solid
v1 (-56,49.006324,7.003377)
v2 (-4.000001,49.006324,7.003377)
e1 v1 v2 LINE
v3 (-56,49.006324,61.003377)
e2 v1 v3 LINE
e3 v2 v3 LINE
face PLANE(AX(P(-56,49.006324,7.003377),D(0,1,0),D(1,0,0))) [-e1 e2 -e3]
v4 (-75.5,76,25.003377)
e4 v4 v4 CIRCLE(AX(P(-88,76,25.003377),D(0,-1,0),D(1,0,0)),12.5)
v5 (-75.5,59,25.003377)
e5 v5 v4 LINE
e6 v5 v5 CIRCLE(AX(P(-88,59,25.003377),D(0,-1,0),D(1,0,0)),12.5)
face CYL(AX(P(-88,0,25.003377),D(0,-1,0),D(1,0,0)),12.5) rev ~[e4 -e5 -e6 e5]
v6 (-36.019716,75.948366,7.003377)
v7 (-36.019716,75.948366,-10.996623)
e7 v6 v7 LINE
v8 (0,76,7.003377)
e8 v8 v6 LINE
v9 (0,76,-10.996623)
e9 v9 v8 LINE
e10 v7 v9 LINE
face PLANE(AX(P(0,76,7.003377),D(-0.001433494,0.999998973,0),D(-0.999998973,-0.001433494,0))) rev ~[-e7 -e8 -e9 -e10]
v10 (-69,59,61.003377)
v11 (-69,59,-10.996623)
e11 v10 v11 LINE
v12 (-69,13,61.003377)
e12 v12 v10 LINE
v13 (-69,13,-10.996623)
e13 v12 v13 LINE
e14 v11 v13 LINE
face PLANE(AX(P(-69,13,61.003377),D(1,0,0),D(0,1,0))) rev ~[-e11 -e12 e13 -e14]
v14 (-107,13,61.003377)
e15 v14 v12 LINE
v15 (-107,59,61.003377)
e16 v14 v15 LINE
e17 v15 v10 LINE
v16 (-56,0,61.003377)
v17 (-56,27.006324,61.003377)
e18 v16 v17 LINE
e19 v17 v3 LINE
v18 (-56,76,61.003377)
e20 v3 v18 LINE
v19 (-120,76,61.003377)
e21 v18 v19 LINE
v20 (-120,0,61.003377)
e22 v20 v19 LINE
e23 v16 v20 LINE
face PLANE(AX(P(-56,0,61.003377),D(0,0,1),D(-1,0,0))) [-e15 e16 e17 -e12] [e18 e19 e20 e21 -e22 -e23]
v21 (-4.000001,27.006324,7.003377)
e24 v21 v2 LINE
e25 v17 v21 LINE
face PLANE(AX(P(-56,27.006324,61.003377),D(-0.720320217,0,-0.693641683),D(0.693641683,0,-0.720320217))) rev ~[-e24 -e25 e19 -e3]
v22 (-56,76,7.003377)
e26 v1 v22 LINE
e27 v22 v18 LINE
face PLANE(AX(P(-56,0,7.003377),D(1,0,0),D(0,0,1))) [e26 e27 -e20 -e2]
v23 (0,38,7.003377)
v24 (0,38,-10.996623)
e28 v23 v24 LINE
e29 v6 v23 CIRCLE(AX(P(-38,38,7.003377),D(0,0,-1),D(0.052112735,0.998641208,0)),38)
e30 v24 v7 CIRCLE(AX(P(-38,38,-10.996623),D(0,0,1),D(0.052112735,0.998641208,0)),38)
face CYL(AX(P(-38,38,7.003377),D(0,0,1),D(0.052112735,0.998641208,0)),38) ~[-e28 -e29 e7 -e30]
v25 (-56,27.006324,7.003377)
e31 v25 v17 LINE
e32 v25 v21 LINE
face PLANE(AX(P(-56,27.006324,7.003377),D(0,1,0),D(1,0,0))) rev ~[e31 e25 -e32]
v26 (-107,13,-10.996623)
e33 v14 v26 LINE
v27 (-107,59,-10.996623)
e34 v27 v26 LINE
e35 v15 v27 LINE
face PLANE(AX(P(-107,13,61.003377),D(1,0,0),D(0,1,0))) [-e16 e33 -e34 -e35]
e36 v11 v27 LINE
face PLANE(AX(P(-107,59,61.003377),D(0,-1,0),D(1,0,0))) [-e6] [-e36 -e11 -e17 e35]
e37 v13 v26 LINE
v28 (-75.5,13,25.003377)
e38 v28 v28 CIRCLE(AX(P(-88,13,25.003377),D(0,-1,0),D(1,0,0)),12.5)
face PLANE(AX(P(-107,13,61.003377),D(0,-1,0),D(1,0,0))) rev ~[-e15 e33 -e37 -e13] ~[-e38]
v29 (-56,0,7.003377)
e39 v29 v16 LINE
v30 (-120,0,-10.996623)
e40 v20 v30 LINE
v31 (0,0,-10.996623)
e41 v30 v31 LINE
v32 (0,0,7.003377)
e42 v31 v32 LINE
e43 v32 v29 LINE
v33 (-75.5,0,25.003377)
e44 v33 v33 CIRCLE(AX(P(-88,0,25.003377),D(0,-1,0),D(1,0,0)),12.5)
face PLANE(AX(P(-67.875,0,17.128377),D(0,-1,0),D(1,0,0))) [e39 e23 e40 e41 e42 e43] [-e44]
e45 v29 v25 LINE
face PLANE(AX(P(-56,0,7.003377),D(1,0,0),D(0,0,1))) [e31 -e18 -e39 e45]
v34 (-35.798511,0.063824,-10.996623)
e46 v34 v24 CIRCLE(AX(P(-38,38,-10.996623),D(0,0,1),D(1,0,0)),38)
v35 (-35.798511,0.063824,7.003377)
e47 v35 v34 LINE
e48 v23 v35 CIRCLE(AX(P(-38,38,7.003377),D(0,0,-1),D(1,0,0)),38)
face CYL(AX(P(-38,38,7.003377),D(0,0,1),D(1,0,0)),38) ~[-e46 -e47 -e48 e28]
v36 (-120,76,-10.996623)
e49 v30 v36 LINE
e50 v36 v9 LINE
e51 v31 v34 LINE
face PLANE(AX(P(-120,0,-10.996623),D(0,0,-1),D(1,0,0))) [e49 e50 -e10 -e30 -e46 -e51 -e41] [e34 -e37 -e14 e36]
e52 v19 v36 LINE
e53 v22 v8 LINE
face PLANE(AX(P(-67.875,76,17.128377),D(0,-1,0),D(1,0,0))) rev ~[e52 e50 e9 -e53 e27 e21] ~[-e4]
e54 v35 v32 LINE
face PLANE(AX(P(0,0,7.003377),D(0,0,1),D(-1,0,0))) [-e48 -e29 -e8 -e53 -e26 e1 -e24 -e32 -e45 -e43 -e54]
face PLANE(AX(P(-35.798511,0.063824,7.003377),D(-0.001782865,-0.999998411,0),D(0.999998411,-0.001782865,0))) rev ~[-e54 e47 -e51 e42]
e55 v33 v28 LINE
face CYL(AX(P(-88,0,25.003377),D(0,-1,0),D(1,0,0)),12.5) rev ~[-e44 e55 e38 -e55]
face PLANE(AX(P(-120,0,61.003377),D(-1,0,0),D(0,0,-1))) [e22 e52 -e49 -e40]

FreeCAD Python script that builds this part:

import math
import FreeCAD as App
import Part
import Sketcher
Q = App.Units.Quantity

doc = App.newDocument("Part")
body = doc.addObject("PartDesign::Body", "Body")

sketch1 = body.newObject("Sketcher::SketchObject", "Sketch")
sketch1.AttachmentSupport = (doc.getObject("XZ_Plane"), [""])
sketch1.MapMode = "FlatFace"
sketch1.addGeometry(Part.LineSegment(App.Vector(-120, -11, 0), App.Vector(0, -11, 0)), False)
sketch1.addGeometry(Part.LineSegment(App.Vector(0, -11, 0), App.Vector(0, 7, 0)), False)
sketch1.addGeometry(Part.LineSegment(App.Vector(0, 7, 0), App.Vector(-56, 7, 0)), False)
sketch1.addGeometry(Part.LineSegment(App.Vector(-56, 7, 0), App.Vector(-56, 61, 0)), False)
sketch1.addGeometry(Part.LineSegment(App.Vector(-56, 61, 0), App.Vector(-120, 61, 0)), False)
sketch1.addGeometry(Part.LineSegment(App.Vector(-120, 61, 0), App.Vector(-120, -11, 0)), False)
sketch1.addGeometry(Part.Circle(App.Vector(-88, 25, 0), App.Vector(0, 0, 1), 12), False)
sketch1.addConstraint(Sketcher.Constraint("Coincident", 0, 2, 1, 1))
sketch1.addConstraint(Sketcher.Constraint("Coincident", 1, 2, 2, 1))
sketch1.addConstraint(Sketcher.Constraint("Coincident", 2, 2, 3, 1))
sketch1.addConstraint(Sketcher.Constraint("Coincident", 3, 2, 4, 1))
sketch1.addConstraint(Sketcher.Constraint("Coincident", 4, 2, 5, 1))
sketch1.addConstraint(Sketcher.Constraint("Coincident", 5, 2, 0, 1))
sketch1.addConstraint(Sketcher.Constraint("Horizontal", 0))
sketch1.addConstraint(Sketcher.Constraint("Vertical", 1))
sketch1.addConstraint(Sketcher.Constraint("Horizontal", 2))
sketch1.addConstraint(Sketcher.Constraint("Vertical", 3))
sketch1.addConstraint(Sketcher.Constraint("Horizontal", 4))
sketch1.addConstraint(Sketcher.Constraint("Vertical", 5))
sketch1.addConstraint(Sketcher.Constraint("PointOnObject", 0, 2, -2))
sketch1.addConstraint(Sketcher.Constraint("Diameter", 6, Q("25 mm")))
sketch1.addConstraint(Sketcher.Constraint("DistanceX", 0, 1, 0, 2, Q("120 mm")))
sketch1.addConstraint(Sketcher.Constraint("DistanceX", 2, 2, 2, 1, Q("56 mm")))
sketch1.addConstraint(Sketcher.Constraint("DistanceY", 1, 1, 1, 2, Q("18 mm")))
sketch1.addConstraint(Sketcher.Constraint("DistanceY", 3, 1, 3, 2, Q("54 mm")))
sketch1.addConstraint(Sketcher.Constraint("DistanceX", 6, 3, -1, 1, Q("88 mm")))
sketch1.addConstraint(Sketcher.Constraint("DistanceY", 0, 2, 6, 3, Q("36 mm")))
sketch1.addConstraint(Sketcher.Constraint("DistanceY", -1, 1, 6, 3, Q("25.003377 mm")))
pad1 = body.newObject("PartDesign::Pad", "Pad")
pad1.Profile = sketch1
pad1.Length = 76
pad1.Reversed = True

sketch2 = body.newObject("Sketcher::SketchObject", "Sketch001")
sketch2.AttachmentSupport = (doc.getObject("XY_Plane"), [""])
sketch2.MapMode = "FlatFace"
sketch2.AttachmentOffset = App.Placement(App.Vector(0, 0, 61.003377), App.Rotation())
sketch2.addGeometry(Part.LineSegment(App.Vector(-107, 59, 0), App.Vector(-107, 13, 0)), False)
sketch2.addGeometry(Part.LineSegment(App.Vector(-107, 13, 0), App.Vector(-69, 13, 0)), False)
sketch2.addGeometry(Part.LineSegment(App.Vector(-69, 13, 0), App.Vector(-69, 59, 0)), False)
sketch2.addGeometry(Part.LineSegment(App.Vector(-69, 59, 0), App.Vector(-107, 59, 0)), False)
sketch2.addConstraint(Sketcher.Constraint("Coincident", 0, 2, 1, 1))
sketch2.addConstraint(Sketcher.Constraint("Coincident", 1, 2, 2, 1))
sketch2.addConstraint(Sketcher.Constraint("Coincident", 2, 2, 3, 1))
sketch2.addConstraint(Sketcher.Constraint("Coincident", 3, 2, 0, 1))
sketch2.addConstraint(Sketcher.Constraint("Vertical", 0))
sketch2.addConstraint(Sketcher.Constraint("Horizontal", 1))
sketch2.addConstraint(Sketcher.Constraint("Vertical", 2))
sketch2.addConstraint(Sketcher.Constraint("Horizontal", 3))
sketch2.addConstraint(Sketcher.Constraint("DistanceX", 1, 1, 1, 2, Q("38 mm")))
sketch2.addConstraint(Sketcher.Constraint("DistanceY", 0, 2, 0, 1, Q("46 mm")))
sketch2.addConstraint(Sketcher.Constraint("DistanceX", 0, 2, -1, 1, Q("107 mm")))
sketch2.addConstraint(Sketcher.Constraint("DistanceY", -1, 1, 0, 2, Q("13 mm")))
pocket1 = body.newObject("PartDesign::Pocket", "Pocket")
pocket1.Profile = sketch2
pocket1.Length = 177

sketch3 = body.newObject("Sketcher::SketchObject", "Sketch002")
sketch3.AttachmentSupport = (doc.getObject("XY_Plane"), [""])
sketch3.MapMode = "FlatFace"
sketch3.AttachmentOffset = App.Placement(App.Vector(0, 0, 7.003377), App.Rotation())
sketch3.addGeometry(Part.ArcOfCircle(Part.Circle(App.Vector(-38, 38, 0), App.Vector(0, 0, 1), 38), math.radians(0), math.radians(87)), False)
sketch3.addGeometry(Part.LineSegment(App.Vector(0, 38, 0), App.Vector(0, 76, 0)), False)
sketch3.addGeometry(Part.LineSegment(App.Vector(0, 76, 0), App.Vector(-36, 76, 0)), False)
sketch3.addConstraint(Sketcher.Constraint("Tangent", 0, 1, 1, 1))
sketch3.addConstraint(Sketcher.Constraint("Coincident", 1, 2, 2, 1))
sketch3.addConstraint(Sketcher.Constraint("Coincident", 2, 2, 0, 2))
sketch3.addConstraint(Sketcher.Constraint("Vertical", 1))
sketch3.addConstraint(Sketcher.Constraint("PointOnObject", 0, 1, -2))
sketch3.addConstraint(Sketcher.Constraint("Radius", 0, Q("38 mm")))
sketch3.addConstraint(Sketcher.Constraint("DistanceY", 1, 1, 1, 2, Q("38 mm")))
sketch3.addConstraint(Sketcher.Constraint("DistanceY", -1, 1, 0, 3, Q("38 mm")))
sketch3.addConstraint(Sketcher.Constraint("Distance", 2, Q("36.019753 mm")))
pocket2 = body.newObject("PartDesign::Pocket", "Pocket001")
pocket2.Profile = sketch3
pocket2.Length = 67

sketch4 = body.newObject("Sketcher::SketchObject", "Sketch003")
sketch4.AttachmentSupport = (doc.getObject("XY_Plane"), [""])
sketch4.MapMode = "FlatFace"
sketch4.AttachmentOffset = App.Placement(App.Vector(0, 0, 7.003377), App.Rotation())
sketch4.addGeometry(Part.ArcOfCircle(Part.Circle(App.Vector(-38, 38, 0), App.Vector(0, 0, 1), 38), math.radians(0), math.radians(87)), False)
sketch4.addGeometry(Part.LineSegment(App.Vector(0, 38, 0), App.Vector(0, 76, 0)), False)
sketch4.addGeometry(Part.LineSegment(App.Vector(0, 76, 0), App.Vector(-36, 76, 0)), False)
sketch4.addGeometry(Part.ArcOfCircle(Part.Circle(App.Vector(-38, 38, 0), App.Vector(0, 0, 1), 38), math.radians(-87), math.radians(0)), False)
sketch4.addGeometry(Part.LineSegment(App.Vector(-36, 0, 0), App.Vector(0, 0, 0)), False)
sketch4.addGeometry(Part.LineSegment(App.Vector(0, 0, 0), App.Vector(0, 38, 0)), False)
sketch4.addConstraint(Sketcher.Constraint("Tangent", 0, 1, 1, 1))
sketch4.addConstraint(Sketcher.Constraint("Coincident", 1, 2, 2, 1))
sketch4.addConstraint(Sketcher.Constraint("Coincident", 2, 2, 0, 2))
sketch4.addConstraint(Sketcher.Constraint("Coincident", 3, 1, 4, 1))
sketch4.addConstraint(Sketcher.Constraint("Coincident", 4, 2, 5, 1))
sketch4.addConstraint(Sketcher.Constraint("Tangent", 5, 2, 3, 2))
sketch4.addConstraint(Sketcher.Constraint("Vertical", 1))
sketch4.addConstraint(Sketcher.Constraint("Vertical", 5))
sketch4.addConstraint(Sketcher.Constraint("Coincident", 4, 2, -1, 1))
sketch4.addConstraint(Sketcher.Constraint("Coincident", 3, 3, 0, 3))
sketch4.addConstraint(Sketcher.Constraint("Equal", 0, 3))
sketch4.addConstraint(Sketcher.Constraint("Equal", 1, 5))
sketch4.addConstraint(Sketcher.Constraint("Radius", 0, Q("38 mm")))
sketch4.addConstraint(Sketcher.Constraint("DistanceY", 1, 1, 1, 2, Q("38 mm")))
sketch4.addConstraint(Sketcher.Constraint("Distance", 4, Q("35.798568 mm")))
sketch4.addConstraint(Sketcher.Constraint("DistanceY", 3, 1, 2, 2, Q("75.884542 mm")))
pocket3 = body.newObject("PartDesign::Pocket", "Pocket002")
pocket3.Profile = sketch4
pocket3.Length = 65

sketch5 = body.newObject("Sketcher::SketchObject", "Sketch004")
sketch5.AttachmentSupport = (doc.getObject("XY_Plane"), [""])
sketch5.MapMode = "FlatFace"
sketch5.AttachmentOffset = App.Placement(App.Vector(0, 0, 7.003377), App.Rotation())
sketch5.addGeometry(Part.LineSegment(App.Vector(-56, 27, 0), App.Vector(-4, 27, 0)), False)
sketch5.addGeometry(Part.LineSegment(App.Vector(-4, 27, 0), App.Vector(-4, 49, 0)), False)
sketch5.addGeometry(Part.LineSegment(App.Vector(-4, 49, 0), App.Vector(-56, 49, 0)), False)
sketch5.addGeometry(Part.LineSegment(App.Vector(-56, 49, 0), App.Vector(-56, 27, 0)), False)
sketch5.addConstraint(Sketcher.Constraint("Coincident", 0, 2, 1, 1))
sketch5.addConstraint(Sketcher.Constraint("Coincident", 1, 2, 2, 1))
sketch5.addConstraint(Sketcher.Constraint("Coincident", 2, 2, 3, 1))
sketch5.addConstraint(Sketcher.Constraint("Coincident", 3, 2, 0, 1))
sketch5.addConstraint(Sketcher.Constraint("Horizontal", 0))
sketch5.addConstraint(Sketcher.Constraint("Vertical", 1))
sketch5.addConstraint(Sketcher.Constraint("Horizontal", 2))
sketch5.addConstraint(Sketcher.Constraint("Vertical", 3))
sketch5.addConstraint(Sketcher.Constraint("DistanceX", 0, 1, 0, 2, Q("51.999999 mm")))
sketch5.addConstraint(Sketcher.Constraint("DistanceY", 1, 1, 1, 2, Q("22 mm")))
sketch5.addConstraint(Sketcher.Constraint("DistanceX", 0, 2, -1, 1, Q("4.000001 mm")))
sketch5.addConstraint(Sketcher.Constraint("DistanceY", -1, 1, 0, 2, Q("27.006324 mm")))
pad2 = body.newObject("PartDesign::Pad", "Pad001")
pad2.Profile = sketch5
pad2.Length = 54

sketch6 = body.newObject("Sketcher::SketchObject", "Sketch005")
sketch6.AttachmentSupport = (doc.getObject("XZ_Plane"), [""])
sketch6.MapMode = "FlatFace"
sketch6.AttachmentOffset = App.Placement(App.Vector(0, 0, -27.006324), App.Rotation())
sketch6.addGeometry(Part.LineSegment(App.Vector(-56, 61, 0), App.Vector(-4, 7, 0)), False)
sketch6.addGeometry(Part.LineSegment(App.Vector(-4, 7, 0), App.Vector(-4, 61, 0)), False)
sketch6.addGeometry(Part.LineSegment(App.Vector(-4, 61, 0), App.Vector(-56, 61, 0)), False)
sketch6.addConstraint(Sketcher.Constraint("Coincident", 0, 2, 1, 1))
sketch6.addConstraint(Sketcher.Constraint("Coincident", 1, 2, 2, 1))
sketch6.addConstraint(Sketcher.Constraint("Coincident", 2, 2, 0, 1))
sketch6.addConstraint(Sketcher.Constraint("Vertical", 1))
sketch6.addConstraint(Sketcher.Constraint("Horizontal", 2))
sketch6.addConstraint(Sketcher.Constraint("DistanceX", 2, 2, 2, 1, Q("51.999999 mm")))
sketch6.addConstraint(Sketcher.Constraint("DistanceY", 1, 1, 1, 2, Q("54 mm")))
sketch6.addConstraint(Sketcher.Constraint("DistanceX", 0, 2, -1, 1, Q("4.000001 mm")))
sketch6.addConstraint(Sketcher.Constraint("DistanceY", -1, 1, 0, 2, Q("7.003377 mm")))
pocket4 = body.newObject("PartDesign::Pocket", "Pocket003")
pocket4.Profile = sketch6
pocket4.Length = 64

doc.recompute()
